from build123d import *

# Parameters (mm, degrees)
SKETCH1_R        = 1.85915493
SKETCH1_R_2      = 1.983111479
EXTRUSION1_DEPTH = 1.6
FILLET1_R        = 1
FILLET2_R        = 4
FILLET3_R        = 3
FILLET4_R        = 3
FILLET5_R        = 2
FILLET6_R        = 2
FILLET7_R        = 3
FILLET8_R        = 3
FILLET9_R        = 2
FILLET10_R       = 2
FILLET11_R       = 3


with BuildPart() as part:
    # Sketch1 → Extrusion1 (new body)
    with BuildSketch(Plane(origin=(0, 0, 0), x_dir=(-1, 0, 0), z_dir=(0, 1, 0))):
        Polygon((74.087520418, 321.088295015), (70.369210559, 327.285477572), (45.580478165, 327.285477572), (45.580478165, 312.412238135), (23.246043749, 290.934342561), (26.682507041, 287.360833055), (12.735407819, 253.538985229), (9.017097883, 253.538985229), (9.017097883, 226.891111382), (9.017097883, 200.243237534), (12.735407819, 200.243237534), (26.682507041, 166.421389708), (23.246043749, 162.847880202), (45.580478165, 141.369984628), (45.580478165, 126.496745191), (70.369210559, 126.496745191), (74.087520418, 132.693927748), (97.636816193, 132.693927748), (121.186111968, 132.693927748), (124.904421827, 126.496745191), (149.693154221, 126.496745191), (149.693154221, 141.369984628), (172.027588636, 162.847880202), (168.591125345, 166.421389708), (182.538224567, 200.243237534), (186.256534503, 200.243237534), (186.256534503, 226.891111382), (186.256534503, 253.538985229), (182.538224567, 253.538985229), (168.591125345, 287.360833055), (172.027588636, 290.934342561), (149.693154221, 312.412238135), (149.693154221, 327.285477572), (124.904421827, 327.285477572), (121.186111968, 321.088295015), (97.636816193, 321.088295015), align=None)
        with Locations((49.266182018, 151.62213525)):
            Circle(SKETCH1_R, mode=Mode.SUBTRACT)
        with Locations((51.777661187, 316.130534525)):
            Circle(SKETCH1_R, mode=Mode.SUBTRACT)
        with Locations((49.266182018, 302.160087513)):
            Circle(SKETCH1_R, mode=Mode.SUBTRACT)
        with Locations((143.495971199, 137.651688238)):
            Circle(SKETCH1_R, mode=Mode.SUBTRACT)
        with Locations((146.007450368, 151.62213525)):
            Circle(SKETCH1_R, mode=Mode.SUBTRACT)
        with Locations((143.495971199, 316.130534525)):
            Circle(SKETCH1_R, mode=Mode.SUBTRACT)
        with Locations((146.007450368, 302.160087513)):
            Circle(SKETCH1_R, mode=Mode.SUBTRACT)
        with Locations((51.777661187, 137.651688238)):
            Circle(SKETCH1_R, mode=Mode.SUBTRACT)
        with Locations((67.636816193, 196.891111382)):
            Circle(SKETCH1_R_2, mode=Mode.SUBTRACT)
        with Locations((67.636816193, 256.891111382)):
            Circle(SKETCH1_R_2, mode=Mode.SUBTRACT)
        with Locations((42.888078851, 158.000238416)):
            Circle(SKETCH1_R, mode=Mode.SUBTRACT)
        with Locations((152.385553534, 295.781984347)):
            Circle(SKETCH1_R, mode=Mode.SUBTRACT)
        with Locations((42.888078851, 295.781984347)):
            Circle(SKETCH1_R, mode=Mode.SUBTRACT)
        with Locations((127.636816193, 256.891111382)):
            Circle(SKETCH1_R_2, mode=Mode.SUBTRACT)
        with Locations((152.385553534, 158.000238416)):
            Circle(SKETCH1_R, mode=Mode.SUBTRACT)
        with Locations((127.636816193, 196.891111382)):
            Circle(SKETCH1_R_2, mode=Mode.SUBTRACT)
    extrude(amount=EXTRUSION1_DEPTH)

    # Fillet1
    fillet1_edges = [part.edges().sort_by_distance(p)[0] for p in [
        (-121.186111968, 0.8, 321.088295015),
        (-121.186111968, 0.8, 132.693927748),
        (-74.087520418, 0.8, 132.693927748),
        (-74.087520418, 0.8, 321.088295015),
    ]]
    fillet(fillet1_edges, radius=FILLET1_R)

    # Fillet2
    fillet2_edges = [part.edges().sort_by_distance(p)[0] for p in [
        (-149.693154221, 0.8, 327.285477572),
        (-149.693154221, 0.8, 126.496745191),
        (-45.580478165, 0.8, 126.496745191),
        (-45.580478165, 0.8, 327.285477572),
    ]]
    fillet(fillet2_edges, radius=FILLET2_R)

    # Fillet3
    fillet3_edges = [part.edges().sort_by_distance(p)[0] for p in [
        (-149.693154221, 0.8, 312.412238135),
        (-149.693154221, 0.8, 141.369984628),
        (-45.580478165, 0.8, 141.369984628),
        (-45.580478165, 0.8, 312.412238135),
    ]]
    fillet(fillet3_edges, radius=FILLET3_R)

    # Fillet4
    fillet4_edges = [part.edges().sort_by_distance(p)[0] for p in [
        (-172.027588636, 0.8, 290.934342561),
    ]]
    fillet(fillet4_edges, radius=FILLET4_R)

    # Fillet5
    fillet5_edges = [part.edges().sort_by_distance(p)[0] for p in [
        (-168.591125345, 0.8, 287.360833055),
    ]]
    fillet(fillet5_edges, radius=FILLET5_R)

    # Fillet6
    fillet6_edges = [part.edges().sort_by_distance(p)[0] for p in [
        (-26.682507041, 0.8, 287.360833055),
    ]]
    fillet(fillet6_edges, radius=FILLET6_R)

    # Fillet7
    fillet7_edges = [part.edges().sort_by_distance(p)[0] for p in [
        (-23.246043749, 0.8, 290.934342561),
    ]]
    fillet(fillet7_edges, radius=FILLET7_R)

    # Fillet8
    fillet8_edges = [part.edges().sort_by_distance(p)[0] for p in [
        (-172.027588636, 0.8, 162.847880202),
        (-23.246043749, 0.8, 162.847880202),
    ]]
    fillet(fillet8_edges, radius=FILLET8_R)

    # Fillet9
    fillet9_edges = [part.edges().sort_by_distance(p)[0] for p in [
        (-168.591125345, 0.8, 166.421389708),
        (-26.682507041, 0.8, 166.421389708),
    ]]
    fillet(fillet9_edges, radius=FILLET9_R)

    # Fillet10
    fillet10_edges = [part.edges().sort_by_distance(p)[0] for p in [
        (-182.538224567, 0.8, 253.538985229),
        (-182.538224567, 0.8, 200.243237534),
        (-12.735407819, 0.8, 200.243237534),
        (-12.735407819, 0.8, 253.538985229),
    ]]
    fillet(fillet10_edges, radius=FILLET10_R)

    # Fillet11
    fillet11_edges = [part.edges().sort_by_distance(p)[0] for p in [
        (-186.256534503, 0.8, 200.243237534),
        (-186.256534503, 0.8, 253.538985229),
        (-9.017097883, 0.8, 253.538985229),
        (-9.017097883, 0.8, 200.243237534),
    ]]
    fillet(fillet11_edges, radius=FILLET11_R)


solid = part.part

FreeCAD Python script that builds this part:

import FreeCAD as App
import Part
import Sketcher
from FreeCAD import Vector
Q = App.Units.Quantity


def edges_at(feature, points):
    """Names of the edges that pass closest to the given points."""
    edges = feature.Shape.Edges
    near = lambda p: min(range(len(edges)), key=lambda i: edges[i].distToShape(Part.Vertex(*p))[0])
    return sorted({f"Edge{near(p) + 1}" for p in points})

doc = App.newDocument("Part")
body = doc.addObject("PartDesign::Body", "Body")

# Sketch on XZ plane
sketch1 = body.newObject("Sketcher::SketchObject", "Sketch")
sketch1.AttachmentSupport = (doc.getObject("XZ_Plane"), [""])
sketch1.MapMode = "FlatFace"
sketch1.addGeometry(Part.LineSegment(Vector(-74.08752, 321.088295, 0), Vector(-70.369211, 327.285478, 0)), False)
sketch1.addGeometry(Part.LineSegment(Vector(-70.369211, 327.285478, 0), Vector(-45.580478, 327.285478, 0)), False)
sketch1.addGeometry(Part.LineSegment(Vector(-45.580478, 327.285478, 0), Vector(-45.580478, 312.412238, 0)), False)
sketch1.addGeometry(Part.LineSegment(Vector(-45.580478, 312.412238, 0), Vector(-23.246044, 290.934343, 0)), False)
sketch1.addGeometry(Part.LineSegment(Vector(-23.246044, 290.934343, 0), Vector(-26.682507, 287.360833, 0)), False)
sketch1.addGeometry(Part.LineSegment(Vector(-26.682507, 287.360833, 0), Vector(-12.735408, 253.538985, 0)), False)
sketch1.addGeometry(Part.LineSegment(Vector(-12.735408, 253.538985, 0), Vector(-9.017098, 253.538985, 0)), False)
sketch1.addGeometry(Part.LineSegment(Vector(-9.017098, 253.538985, 0), Vector(-9.017098, 200.243238, 0)), False)
sketch1.addGeometry(Part.LineSegment(Vector(-9.017098, 200.243238, 0), Vector(-12.735408, 200.243238, 0)), False)
sketch1.addGeometry(Part.LineSegment(Vector(-12.735408, 200.243238, 0), Vector(-26.682507, 166.42139, 0)), False)
sketch1.addGeometry(Part.LineSegment(Vector(-26.682507, 166.42139, 0), Vector(-23.246044, 162.84788, 0)), False)
sketch1.addGeometry(Part.LineSegment(Vector(-23.246044, 162.84788, 0), Vector(-45.580478, 141.369985, 0)), False)
sketch1.addGeometry(Part.LineSegment(Vector(-45.580478, 141.369985, 0), Vector(-45.580478, 126.496745, 0)), False)
sketch1.addGeometry(Part.LineSegment(Vector(-45.580478, 126.496745, 0), Vector(-70.369211, 126.496745, 0)), False)
sketch1.addGeometry(Part.LineSegment(Vector(-70.369211, 126.496745, 0), Vector(-74.08752, 132.693928, 0)), False)
sketch1.addGeometry(Part.LineSegment(Vector(-74.08752, 132.693928, 0), Vector(-121.186112, 132.693928, 0)), False)
sketch1.addGeometry(Part.LineSegment(Vector(-121.186112, 132.693928, 0), Vector(-124.904422, 126.496745, 0)), False)
sketch1.addGeometry(Part.LineSegment(Vector(-124.904422, 126.496745, 0), Vector(-149.693154, 126.496745, 0)), False)
sketch1.addGeometry(Part.LineSegment(Vector(-149.693154, 126.496745, 0), Vector(-149.693154, 141.369985, 0)), False)
sketch1.addGeometry(Part.LineSegment(Vector(-149.693154, 141.369985, 0), Vector(-172.027589, 162.84788, 0)), False)
sketch1.addGeometry(Part.LineSegment(Vector(-172.027589, 162.84788, 0), Vector(-168.591125, 166.42139, 0)), False)
sketch1.addGeometry(Part.LineSegment(Vector(-168.591125, 166.42139, 0), Vector(-182.538225, 200.243238, 0)), False)
sketch1.addGeometry(Part.LineSegment(Vector(-182.538225, 200.243238, 0), Vector(-186.256535, 200.243238, 0)), False)
sketch1.addGeometry(Part.LineSegment(Vector(-186.256535, 200.243238, 0), Vector(-186.256535, 253.538985, 0)), False)
sketch1.addGeometry(Part.LineSegment(Vector(-186.256535, 253.538985, 0), Vector(-182.538225, 253.538985, 0)), False)
sketch1.addGeometry(Part.LineSegment(Vector(-182.538225, 253.538985, 0), Vector(-168.591125, 287.360833, 0)), False)
sketch1.addGeometry(Part.LineSegment(Vector(-168.591125, 287.360833, 0), Vector(-172.027589, 290.934343, 0)), False)
sketch1.addGeometry(Part.LineSegment(Vector(-172.027589, 290.934343, 0), Vector(-149.693154, 312.412238, 0)), False)
sketch1.addGeometry(Part.LineSegment(Vector(-149.693154, 312.412238, 0), Vector(-149.693154, 327.285478, 0)), False)
sketch1.addGeometry(Part.LineSegment(Vector(-149.693154, 327.285478, 0), Vector(-124.904422, 327.285478, 0)), False)
sketch1.addGeometry(Part.LineSegment(Vector(-124.904422, 327.285478, 0), Vector(-121.186112, 321.088295, 0)), False)
sketch1.addGeometry(Part.LineSegment(Vector(-121.186112, 321.088295, 0), Vector(-74.08752, 321.088295, 0)), False)
sketch1.addGeometry(Part.Circle(Vector(-51.777661, 137.651688, 0), Vector(0, 0, 1), 1.859155), False)
sketch1.addGeometry(Part.Circle(Vector(-42.888079, 158.000238, 0), Vector(0, 0, 1), 1.859155), False)
sketch1.addGeometry(Part.Circle(Vector(-49.266182, 151.622135, 0), Vector(0, 0, 1), 1.859155), False)
sketch1.addGeometry(Part.Circle(Vector(-67.636816, 196.891111, 0), Vector(0, 0, 1), 1.983111), False)
sketch1.addGeometry(Part.Circle(Vector(-143.495971, 137.651688, 0), Vector(0, 0, 1), 1.859155), False)
sketch1.addGeometry(Part.Circle(Vector(-146.00745, 151.622135, 0), Vector(0, 0, 1), 1.859155), False)
sketch1.addGeometry(Part.Circle(Vector(-152.385554, 158.000238, 0), Vector(0, 0, 1), 1.859155), False)
sketch1.addGeometry(Part.Circle(Vector(-127.636816, 196.891111, 0), Vector(0, 0, 1), 1.983111), False)
sketch1.addGeometry(Part.Circle(Vector(-67.636816, 256.891111, 0), Vector(0, 0, 1), 1.983111), False)
sketch1.addGeometry(Part.Circle(Vector(-42.888079, 295.781984, 0), Vector(0, 0, 1), 1.859155), False)
sketch1.addGeometry(Part.Circle(Vector(-49.266182, 302.160088, 0), Vector(0, 0, 1), 1.859155), False)
sketch1.addGeometry(Part.Circle(Vector(-51.777661, 316.130535, 0), Vector(0, 0, 1), 1.859155), False)
sketch1.addGeometry(Part.Circle(Vector(-127.636816, 256.891111, 0), Vector(0, 0, 1), 1.983111), False)
sketch1.addGeometry(Part.Circle(Vector(-146.00745, 302.160088, 0), Vector(0, 0, 1), 1.859155), False)
sketch1.addGeometry(Part.Circle(Vector(-152.385554, 295.781984, 0), Vector(0, 0, 1), 1.859155), False)
sketch1.addGeometry(Part.Circle(Vector(-143.495971, 316.130535, 0), Vector(0, 0, 1), 1.859155), False)
sketch1.addConstraint(Sketcher.Constraint("Coincident", 0, 2, 1, 1))
sketch1.addConstraint(Sketcher.Constraint("Coincident", 1, 2, 2, 1))
sketch1.addConstraint(Sketcher.Constraint("Coincident", 2, 2, 3, 1))
sketch1.addConstraint(Sketcher.Constraint("Coincident", 3, 2, 4, 1))
sketch1.addConstraint(Sketcher.Constraint("Coincident", 4, 2, 5, 1))
sketch1.addConstraint(Sketcher.Constraint("Coincident", 5, 2, 6, 1))
sketch1.addConstraint(Sketcher.Constraint("Coincident", 6, 2, 7, 1))
sketch1.addConstraint(Sketcher.Constraint("Coincident", 7, 2, 8, 1))
sketch1.addConstraint(Sketcher.Constraint("Coincident", 8, 2, 9, 1))
sketch1.addConstraint(Sketcher.Constraint("Coincident", 9, 2, 10, 1))
sketch1.addConstraint(Sketcher.Constraint("Coincident", 10, 2, 11, 1))
sketch1.addConstraint(Sketcher.Constraint("Coincident", 11, 2, 12, 1))
sketch1.addConstraint(Sketcher.Constraint("Coincident", 12, 2, 13, 1))
sketch1.addConstraint(Sketcher.Constraint("Coincident", 13, 2, 14, 1))
sketch1.addConstraint(Sketcher.Constraint("Coincident", 14, 2, 15, 1))
sketch1.addConstraint(Sketcher.Constraint("Coincident", 15, 2, 16, 1))
sketch1.addConstraint(Sketcher.Constraint("Coincident", 16, 2, 17, 1))
sketch1.addConstraint(Sketcher.Constraint("Coincident", 17, 2, 18, 1))
sketch1.addConstraint(Sketcher.Constraint("Coincident", 18, 2, 19, 1))
sketch1.addConstraint(Sketcher.Constraint("Coincident", 19, 2, 20, 1))
sketch1.addConstraint(Sketcher.Constraint("Coincident", 20, 2, 21, 1))
sketch1.addConstraint(Sketcher.Constraint("Coincident", 21, 2, 22, 1))
sketch1.addConstraint(Sketcher.Constraint("Coincident", 22, 2, 23, 1))
sketch1.addConstraint(Sketcher.Constraint("Coincident", 23, 2, 24, 1))
sketch1.addConstraint(Sketcher.Constraint("Coincident", 24, 2, 25, 1))
sketch1.addConstraint(Sketcher.Constraint("Coincident", 25, 2, 26, 1))
sketch1.addConstraint(Sketcher.Constraint("Coincident", 26, 2, 27, 1))
sketch1.addConstraint(Sketcher.Constraint("Coincident", 27, 2, 28, 1))
sketch1.addConstraint(Sketcher.Constraint("Coincident", 28, 2, 29, 1))
sketch1.addConstraint(Sketcher.Constraint("Coincident", 29, 2, 30, 1))
sketch1.addConstraint(Sketcher.Constraint("Coincident", 30, 2, 31, 1))
sketch1.addConstraint(Sketcher.Constraint("Coincident", 31, 2, 0, 1))
sketch1.addConstraint(Sketcher.Constraint("Horizontal", 1))
sketch1.addConstraint(Sketcher.Constraint("Vertical", 2))
sketch1.addConstraint(Sketcher.Constraint("Horizontal", 6))
sketch1.addConstraint(Sketcher.Constraint("Vertical", 7))
sketch1.addConstraint(Sketcher.Constraint("Horizontal", 8))
sketch1.addConstraint(Sketcher.Constraint("Vertical", 12))
sketch1.addConstraint(Sketcher.Constraint("Horizontal", 13))
sketch1.addConstraint(Sketcher.Constraint("Horizontal", 15))
sketch1.addConstraint(Sketcher.Constraint("Horizontal", 17))
sketch1.addConstraint(Sketcher.Constraint("Vertical", 18))
sketch1.addConstraint(Sketcher.Constraint("Horizontal", 22))
sketch1.addConstraint(Sketcher.Constraint("Vertical", 23))
sketch1.addConstraint(Sketcher.Constraint("Horizontal", 24))
sketch1.addConstraint(Sketcher.Constraint("Vertical", 28))
sketch1.addConstraint(Sketcher.Constraint("Horizontal", 29))
sketch1.addConstraint(Sketcher.Constraint("Horizontal", 31))
sketch1.addConstraint(Sketcher.Constraint("Equal", 32, 33))
sketch1.addConstraint(Sketcher.Constraint("Equal", 33, 34))
sketch1.addConstraint(Sketcher.Constraint("Equal", 34, 36))
sketch1.addConstraint(Sketcher.Constraint("Equal", 36, 37))
sketch1.addConstraint(Sketcher.Constraint("Equal", 37, 38))
sketch1.addConstraint(Sketcher.Constraint("Equal", 35, 39))
sketch1.addConstraint(Sketcher.Constraint("Equal", 39, 40))
sketch1.addConstraint(Sketcher.Constraint("Equal", 38, 41))
sketch1.addConstraint(Sketcher.Constraint("Equal", 41, 42))
sketch1.addConstraint(Sketcher.Constraint("Equal", 42, 43))
sketch1.addConstraint(Sketcher.Constraint("Equal", 40, 44))
sketch1.addConstraint(Sketcher.Constraint("Equal", 43, 45))
sketch1.addConstraint(Sketcher.Constraint("Equal", 45, 46))
sketch1.addConstraint(Sketcher.Constraint("Equal", 46, 47))
sketch1.addConstraint(Sketcher.Constraint("Perpendicular", 3, 4))
sketch1.addConstraint(Sketcher.Constraint("Perpendicular", 10, 11))
sketch1.addConstraint(Sketcher.Constraint("Parallel", 0, 16))
sketch1.addConstraint(Sketcher.Constraint("Perpendicular", 4, 19))
sketch1.addConstraint(Sketcher.Constraint("Perpendicular", 19, 20))
sketch1.addConstraint(Sketcher.Constraint("Parallel", 5, 21))
sketch1.addConstraint(Sketcher.Constraint("Parallel", 9, 25))
sketch1.addConstraint(Sketcher.Constraint("Perpendicular", 11, 26))
sketch1.addConstraint(Sketcher.Constraint("Perpendicular", 26, 27))
sketch1.addConstraint(Sketcher.Constraint("Parallel", 14, 30))
sketch1.addConstraint(Sketcher.Constraint("Horizontal", 32, 3, 36, 3))
sketch1.addConstraint(Sketcher.Constraint("Horizontal", 34, 3, 37, 3))
sketch1.addConstraint(Sketcher.Constraint("Horizontal", 33, 3, 38, 3))
sketch1.addConstraint(Sketcher.Constraint("Horizontal", 35, 3, 39, 3))
sketch1.addConstraint(Sketcher.Constraint("Horizontal", 40, 3, 44, 3))
sketch1.addConstraint(Sketcher.Constraint("Horizontal", 42, 3, 45, 3))
sketch1.addConstraint(Sketcher.Constraint("Horizontal", 41, 3, 46, 3))
sketch1.addConstraint(Sketcher.Constraint("Horizontal", 43, 3, 47, 3))
sketch1.addConstraint(Sketcher.Constraint("Horizontal", 13, 2, 16, 2))
sketch1.addConstraint(Sketcher.Constraint("Horizontal", 11, 2, 18, 2))
sketch1.addConstraint(Sketcher.Constraint("Horizontal", 10, 2, 19, 2))
sketch1.addConstraint(Sketcher.Constraint("Horizontal", 9, 2, 20, 2))
sketch1.addConstraint(Sketcher.Constraint("Horizontal", 8, 2, 21, 2))
sketch1.addConstraint(Sketcher.Constraint("Horizontal", 6, 2, 23, 2))
sketch1.addConstraint(Sketcher.Constraint("Horizontal", 4, 2, 25, 2))
sketch1.addConstraint(Sketcher.Constraint("Horizontal", 3, 2, 26, 2))
sketch1.addConstraint(Sketcher.Constraint("Horizontal", 2, 2, 27, 2))
sketch1.addConstraint(Sketcher.Constraint("Horizontal", 1, 2, 28, 2))
sketch1.addConstraint(Sketcher.Constraint("Vertical", 35, 3, 40, 3))
sketch1.addConstraint(Sketcher.Constraint("Vertical", 33, 3, 41, 3))
sketch1.addConstraint(Sketcher.Constraint("Vertical", 34, 3, 42, 3))
sketch1.addConstraint(Sketcher.Constraint("Vertical", 32, 3, 43, 3))
sketch1.addConstraint(Sketcher.Constraint("Vertical", 39, 3, 44, 3))
sketch1.addConstraint(Sketcher.Constraint("Vertical", 37, 3, 45, 3))
sketch1.addConstraint(Sketcher.Constraint("Vertical", 38, 3, 46, 3))
sketch1.addConstraint(Sketcher.Constraint("Vertical", 36, 3, 47, 3))
sketch1.addConstraint(Sketcher.Constraint("Vertical", 5, 2, 8, 2))
sketch1.addConstraint(Sketcher.Constraint("Vertical", 4, 2, 9, 2))
sketch1.addConstraint(Sketcher.Constraint("Vertical", 3, 2, 10, 2))
sketch1.addConstraint(Sketcher.Constraint("Vertical", 2, 2, 11, 2))
sketch1.addConstraint(Sketcher.Constraint("Vertical", 0, 2, 13, 2))
sketch1.addConstraint(Sketcher.Constraint("Vertical", 21, 2, 24, 2))
sketch1.addConstraint(Sketcher.Constraint("Vertical", 20, 2, 25, 2))
sketch1.addConstraint(Sketcher.Constraint("Vertical", 19, 2, 26, 2))
sketch1.addConstraint(Sketcher.Constraint("Vertical", 16, 2, 29, 2))
sketch1.addConstraint(Sketcher.Constraint("Vertical", 15, 2, 30, 2))
sketch1.addConstraint(Sketcher.Constraint("Vertical", 14, 2, 31, 2))
sketch1.addConstraint(Sketcher.Constraint("Equal", 13, 17))
sketch1.addConstraint(Sketcher.Constraint("Equal", 8, 22))
sketch1.addConstraint(Sketcher.Constraint("Equal", 2, 12))
sketch1.addConstraint(Sketcher.Constraint("DistanceX", 39, 3, 35, 3, 60.0))
sketch1.addConstraint(Sketcher.Constraint("DistanceY", 35, 3, 40, 3, 60.0))
sketch1.addConstraint(Sketcher.Constraint("Angle", 3, Q("-43.88 deg")))
sketch1.addConstraint(Sketcher.Constraint("Diameter", 32, 3.71831))
sketch1.addConstraint(Sketcher.Constraint("Diameter", 35, 3.966223))
sketch1.addConstraint(Sketcher.Constraint("DistanceY", 5, 2, 41, 3, 42.242999))
sketch1.addConstraint(Sketcher.Constraint("DistanceY", 33, 3, 7, 2, 42.242999))
sketch1.addConstraint(Sketcher.Constraint("DistanceX", 6, 1, 6, 2, 3.71831))
sketch1.addConstraint(Sketcher.Constraint("DistanceX", 15, 2, 15, 1, 47.098592))
sketch1.addConstraint(Sketcher.Constraint("DistanceY", 2, 2, 2, 1, 14.873239))
sketch1.addConstraint(Sketcher.Constraint("DistanceX", 1, 2, 41, 3, 2.692399))
sketch1.addConstraint(Sketcher.Constraint("DistanceY", 4, 2, 43, 3, 28.769701))
sketch1.addConstraint(Sketcher.Constraint("DistanceX", 4, 2, 5, 2, 13.947099))
sketch1.addConstraint(Sketcher.Constraint("DistanceY", 32, 3, 9, 2, 28.769701))
sketch1.addConstraint(Sketcher.Constraint("DistanceX", 15, 2, 13, 2, 50.816901))
sketch1.addConstraint(Sketcher.Constraint("DistanceX", 38, 3, 17, 2, 2.692399))
sketch1.addConstraint(Sketcher.Constraint("DistanceX", 1, 1, 1, 2, 24.788732))
sketch1.addConstraint(Sketcher.Constraint("DistanceY", 7, 2, 7, 1, 53.295748))
sketch1.addConstraint(Sketcher.Constraint("DistanceX", 32, 3, -1, 1, 51.777661))
sketch1.addConstraint(Sketcher.Constraint("DistanceY", -1, 1, 32, 3, 137.651688))
sketch1.addConstraint(Sketcher.Constraint("DistanceX", 33, 3, -1, 1, 42.888079))
sketch1.addConstraint(Sketcher.Constraint("DistanceY", -1, 1, 33, 3, 158.000238))
sketch1.addConstraint(Sketcher.Constraint("DistanceY", -1, 1, 35, 3, 196.891111))
sketch1.addConstraint(Sketcher.Constraint("DistanceX", 36, 3, -1, 1, 143.495971))
sketch1.addConstraint(Sketcher.Constraint("DistanceX", 37, 3, -1, 1, 146.00745))
sketch1.addConstraint(Sketcher.Constraint("DistanceY", -1, 1, 2, 2, 312.412238))
sketch1.addConstraint(Sketcher.Constraint("DistanceY", -1, 1, 10, 2, 162.84788))
sketch1.addConstraint(Sketcher.Constraint("DistanceX", 32, 3, 34, 3, 2.511479))
sketch1.addConstraint(Sketcher.Constraint("DistanceY", 34, 3, 41, 3, 144.159849))
sketch1.addConstraint(Sketcher.Constraint("DistanceY", 33, 3, 42, 3, 144.159849))
sketch1.addConstraint(Sketcher.Constraint("DistanceX", 40, 3, 1, 2, 22.056338))
sketch1.addConstraint(Sketcher.Constraint("DistanceY", 14, 2, 32, 3, 4.95776))
pad1 = body.newObject("PartDesign::Pad", "Pad")
pad1.Profile = sketch1
pad1.Length = 1.6
pad1.Reversed = True
doc.recompute()

fillet = body.newObject("PartDesign::Fillet", "Fillet")
fillet.Base = (pad1, edges_at(pad1, [
    (-121.186, 0.8, 321.088),
    (-121.186, 0.8, 132.694),
    (-74.088, 0.8, 132.694),
    (-74.088, 0.8, 321.088),
]))
fillet.Radius = 1
doc.recompute()

fillet2 = body.newObject("PartDesign::Fillet", "Fillet001")
fillet2.Base = (fillet, edges_at(fillet, [
    (-149.693, 0.8, 327.285),
    (-149.693, 0.8, 126.497),
    (-45.58, 0.8, 126.497),
    (-45.58, 0.8, 327.285),
]))
fillet2.Radius = 4
doc.recompute()

fillet3 = body.newObject("PartDesign::Fillet", "Fillet002")
fillet3.Base = (fillet2, edges_at(fillet2, [
    (-149.693, 0.8, 312.412),
    (-149.693, 0.8, 141.37),
    (-45.58, 0.8, 141.37),
    (-45.58, 0.8, 312.412),
]))
fillet3.Radius = 3
doc.recompute()

fillet4 = body.newObject("PartDesign::Fillet", "Fillet003")
fillet4.Base = (fillet3, edges_at(fillet3, [(-172.028, 0.8, 290.934)]))
fillet4.Radius = 3
doc.recompute()

fillet5 = body.newObject("PartDesign::Fillet", "Fillet004")
fillet5.Base = (fillet4, edges_at(fillet4, [(-168.591, 0.8, 287.361)]))
fillet5.Radius = 2
doc.recompute()

fillet6 = body.newObject("PartDesign::Fillet", "Fillet005")
fillet6.Base = (fillet5, edges_at(fillet5, [(-26.683, 0.8, 287.361)]))
fillet6.Radius = 2
doc.recompute()

fillet7 = body.newObject("PartDesign::Fillet", "Fillet006")
fillet7.Base = (fillet6, edges_at(fillet6, [(-23.246, 0.8, 290.934)]))
fillet7.Radius = 3
doc.recompute()

fillet8 = body.newObject("PartDesign::Fillet", "Fillet007")
fillet8.Base = (fillet7, edges_at(fillet7, [(-172.028, 0.8, 162.848), (-23.246, 0.8, 162.848)]))
fillet8.Radius = 3
doc.recompute()

fillet9 = body.newObject("PartDesign::Fillet", "Fillet008")
fillet9.Base = (fillet8, edges_at(fillet8, [(-168.591, 0.8, 166.421), (-26.683, 0.8, 166.421)]))
fillet9.Radius = 2
doc.recompute()

fillet10 = body.newObject("PartDesign::Fillet", "Fillet009")
fillet10.Base = (fillet9, edges_at(fillet9, [
    (-182.538, 0.8, 253.539),
    (-182.538, 0.8, 200.243),
    (-12.735, 0.8, 200.243),
    (-12.735, 0.8, 253.539),
]))
fillet10.Radius = 2
doc.recompute()

fillet11 = body.newObject("PartDesign::Fillet", "Fillet010")
fillet11.Base = (fillet10, edges_at(fillet10, [
    (-186.257, 0.8, 200.243),
    (-186.257, 0.8, 253.539),
    (-9.017, 0.8, 253.539),
    (-9.017, 0.8, 200.243),
]))
fillet11.Radius = 3

doc.recompute()
